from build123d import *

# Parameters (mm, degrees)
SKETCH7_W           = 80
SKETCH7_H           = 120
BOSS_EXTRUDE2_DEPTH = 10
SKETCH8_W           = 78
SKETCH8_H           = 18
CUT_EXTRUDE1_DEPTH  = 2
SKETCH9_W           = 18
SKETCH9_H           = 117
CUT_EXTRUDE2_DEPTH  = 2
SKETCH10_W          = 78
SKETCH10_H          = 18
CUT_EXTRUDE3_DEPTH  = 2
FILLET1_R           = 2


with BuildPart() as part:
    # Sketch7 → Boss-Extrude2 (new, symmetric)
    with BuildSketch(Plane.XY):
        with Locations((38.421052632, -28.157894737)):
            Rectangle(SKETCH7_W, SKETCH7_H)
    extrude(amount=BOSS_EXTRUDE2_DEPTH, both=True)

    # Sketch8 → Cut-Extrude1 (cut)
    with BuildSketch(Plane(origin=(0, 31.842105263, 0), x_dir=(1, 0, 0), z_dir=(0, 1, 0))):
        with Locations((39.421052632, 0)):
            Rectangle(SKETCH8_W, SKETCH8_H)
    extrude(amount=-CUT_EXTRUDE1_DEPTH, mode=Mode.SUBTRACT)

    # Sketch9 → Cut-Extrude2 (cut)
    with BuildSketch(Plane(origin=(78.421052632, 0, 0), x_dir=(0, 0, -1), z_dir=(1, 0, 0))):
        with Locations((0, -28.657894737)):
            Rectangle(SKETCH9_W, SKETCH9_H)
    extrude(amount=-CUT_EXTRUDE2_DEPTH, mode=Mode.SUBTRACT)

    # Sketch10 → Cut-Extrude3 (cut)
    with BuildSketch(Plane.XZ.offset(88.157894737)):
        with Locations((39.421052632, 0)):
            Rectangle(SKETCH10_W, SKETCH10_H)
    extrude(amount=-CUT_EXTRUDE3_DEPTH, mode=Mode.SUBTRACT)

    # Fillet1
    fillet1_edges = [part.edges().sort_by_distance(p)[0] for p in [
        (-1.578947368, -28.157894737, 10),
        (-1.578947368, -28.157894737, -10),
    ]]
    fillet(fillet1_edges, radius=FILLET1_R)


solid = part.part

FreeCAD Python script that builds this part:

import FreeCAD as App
import Part
import Sketcher
from FreeCAD import Vector


def edges_at(feature, points):
    """Names of the edges that pass closest to the given points."""
    edges = feature.Shape.Edges
    near = lambda p: min(range(len(edges)), key=lambda i: edges[i].distToShape(Part.Vertex(*p))[0])
    return sorted({f"Edge{near(p) + 1}" for p in points})


def add_polygon(sketch, points):
    """Adds a closed chain of lines whose ends are joined by coincident constraints."""
    first, n = sketch.GeometryCount, len(points)
    for a, b in zip(points, points[1:] + points[:1]):
        sketch.addGeometry(Part.LineSegment(App.Vector(*a, 0), App.Vector(*b, 0)), False)
    for i in range(n):
        sketch.addConstraint(Sketcher.Constraint("Coincident", first + i, 2, first + (i + 1) % n, 1))

doc = App.newDocument("Part")
body = doc.addObject("PartDesign::Body", "Body")

# Sketch on XY plane
sketch1 = body.newObject("Sketcher::SketchObject", "Sketch")
sketch1.AttachmentSupport = (doc.getObject("XY_Plane"), [""])
sketch1.MapMode = "FlatFace"
add_polygon(sketch1, [(-2, 32), (-2, -88), (78, -88), (78, 32)])  # lines 0-3
sketch1.addConstraint(Sketcher.Constraint("Vertical", 0))
sketch1.addConstraint(Sketcher.Constraint("Horizontal", 1))
sketch1.addConstraint(Sketcher.Constraint("Vertical", 2))
sketch1.addConstraint(Sketcher.Constraint("Horizontal", 3))
sketch1.addConstraint(Sketcher.Constraint("DistanceX", 1, 1, 1, 2, 80.0))
sketch1.addConstraint(Sketcher.Constraint("DistanceY", 0, 2, 0, 1, 120.0))
sketch1.addConstraint(Sketcher.Constraint("DistanceX", 0, 2, -1, 1, 1.578947))
sketch1.addConstraint(Sketcher.Constraint("DistanceY", 0, 2, -1, 1, 88.157895))
pad1 = body.newObject("PartDesign::Pad", "Pad")
pad1.Profile = sketch1
pad1.Length = 20
pad1.Midplane = True

# Sketch on XZ plane
sketch2 = body.newObject("Sketcher::SketchObject", "Sketch001")
sketch2.AttachmentSupport = (doc.getObject("XZ_Plane"), [""])
sketch2.MapMode = "FlatFace"
sketch2.AttachmentOffset = App.Placement(Vector(0, 0, -31.842105), App.Rotation())
add_polygon(sketch2, [(0, -9), (0, 9), (78, 9), (78, -9)])  # lines 0-3
sketch2.addConstraint(Sketcher.Constraint("Vertical", 0))
sketch2.addConstraint(Sketcher.Constraint("Horizontal", 1))
sketch2.addConstraint(Sketcher.Constraint("Vertical", 2))
sketch2.addConstraint(Sketcher.Constraint("Horizontal", 3))
sketch2.addConstraint(Sketcher.Constraint("DistanceX", 1, 1, 1, 2, 78.0))
sketch2.addConstraint(Sketcher.Constraint("DistanceY", 0, 1, 0, 2, 18.0))
sketch2.addConstraint(Sketcher.Constraint("DistanceY", -1, 1, 0, 2, 9.0))
sketch2.addConstraint(Sketcher.Constraint("DistanceX", -1, 1, 0, 2, 0.421053))
pocket1 = body.newObject("PartDesign::Pocket", "Pocket")
pocket1.Profile = sketch2
pocket1.Length = 2
pocket1.Reversed = True

# Sketch on YZ plane
sketch3 = body.newObject("Sketcher::SketchObject", "Sketch002")
sketch3.AttachmentSupport = (doc.getObject("YZ_Plane"), [""])
sketch3.MapMode = "FlatFace"
sketch3.AttachmentOffset = App.Placement(Vector(0, 0, 78.421053), App.Rotation())
add_polygon(sketch3, [(30, 9), (-87, 9), (-87, -9), (30, -9)])  # lines 0-3
sketch3.addConstraint(Sketcher.Constraint("Horizontal", 0))
sketch3.addConstraint(Sketcher.Constraint("Vertical", 1))
sketch3.addConstraint(Sketcher.Constraint("Horizontal", 2))
sketch3.addConstraint(Sketcher.Constraint("Vertical", 3))
sketch3.addConstraint(Sketcher.Constraint("DistanceX", 0, 2, 0, 1, 117.0))
sketch3.addConstraint(Sketcher.Constraint("DistanceY", 1, 2, 1, 1, 18.0))
sketch3.addConstraint(Sketcher.Constraint("DistanceY", -1, 1, 0, 2, 9.0))
sketch3.addConstraint(Sketcher.Constraint("DistanceX", 0, 2, -1, 1, 87.157895))
pocket2 = body.newObject("PartDesign::Pocket", "Pocket001")
pocket2.Profile = sketch3
pocket2.Length = 2

# Sketch on XZ plane
sketch4 = body.newObject("Sketcher::SketchObject", "Sketch003")
sketch4.AttachmentSupport = (doc.getObject("XZ_Plane"), [""])
sketch4.MapMode = "FlatFace"
sketch4.AttachmentOffset = App.Placement(Vector(0, 0, 88.157895), App.Rotation())
add_polygon(sketch4, [(0, 9), (0, -9), (78, -9), (78, 9)])  # lines 0-3
sketch4.addConstraint(Sketcher.Constraint("Vertical", 0))
sketch4.addConstraint(Sketcher.Constraint("Horizontal", 1))
sketch4.addConstraint(Sketcher.Constraint("Vertical", 2))
sketch4.addConstraint(Sketcher.Constraint("Horizontal", 3))
sketch4.addConstraint(Sketcher.Constraint("DistanceX", 1, 1, 1, 2, 78.0))
sketch4.addConstraint(Sketcher.Constraint("DistanceY", 0, 2, 0, 1, 18.0))
sketch4.addConstraint(Sketcher.Constraint("DistanceY", 0, 2, -1, 1, 9.0))
sketch4.addConstraint(Sketcher.Constraint("DistanceX", -1, 1, 0, 2, 0.421053))
pocket3 = body.newObject("PartDesign::Pocket", "Pocket002")
pocket3.Profile = sketch4
pocket3.Length = 2
doc.recompute()

fillet = body.newObject("PartDesign::Fillet", "Fillet")
fillet.Base = (pocket3, edges_at(pocket3, [(-1.579, -28.158, 10), (-1.579, -28.158, -10)]))
fillet.Radius = 2

doc.recompute()
